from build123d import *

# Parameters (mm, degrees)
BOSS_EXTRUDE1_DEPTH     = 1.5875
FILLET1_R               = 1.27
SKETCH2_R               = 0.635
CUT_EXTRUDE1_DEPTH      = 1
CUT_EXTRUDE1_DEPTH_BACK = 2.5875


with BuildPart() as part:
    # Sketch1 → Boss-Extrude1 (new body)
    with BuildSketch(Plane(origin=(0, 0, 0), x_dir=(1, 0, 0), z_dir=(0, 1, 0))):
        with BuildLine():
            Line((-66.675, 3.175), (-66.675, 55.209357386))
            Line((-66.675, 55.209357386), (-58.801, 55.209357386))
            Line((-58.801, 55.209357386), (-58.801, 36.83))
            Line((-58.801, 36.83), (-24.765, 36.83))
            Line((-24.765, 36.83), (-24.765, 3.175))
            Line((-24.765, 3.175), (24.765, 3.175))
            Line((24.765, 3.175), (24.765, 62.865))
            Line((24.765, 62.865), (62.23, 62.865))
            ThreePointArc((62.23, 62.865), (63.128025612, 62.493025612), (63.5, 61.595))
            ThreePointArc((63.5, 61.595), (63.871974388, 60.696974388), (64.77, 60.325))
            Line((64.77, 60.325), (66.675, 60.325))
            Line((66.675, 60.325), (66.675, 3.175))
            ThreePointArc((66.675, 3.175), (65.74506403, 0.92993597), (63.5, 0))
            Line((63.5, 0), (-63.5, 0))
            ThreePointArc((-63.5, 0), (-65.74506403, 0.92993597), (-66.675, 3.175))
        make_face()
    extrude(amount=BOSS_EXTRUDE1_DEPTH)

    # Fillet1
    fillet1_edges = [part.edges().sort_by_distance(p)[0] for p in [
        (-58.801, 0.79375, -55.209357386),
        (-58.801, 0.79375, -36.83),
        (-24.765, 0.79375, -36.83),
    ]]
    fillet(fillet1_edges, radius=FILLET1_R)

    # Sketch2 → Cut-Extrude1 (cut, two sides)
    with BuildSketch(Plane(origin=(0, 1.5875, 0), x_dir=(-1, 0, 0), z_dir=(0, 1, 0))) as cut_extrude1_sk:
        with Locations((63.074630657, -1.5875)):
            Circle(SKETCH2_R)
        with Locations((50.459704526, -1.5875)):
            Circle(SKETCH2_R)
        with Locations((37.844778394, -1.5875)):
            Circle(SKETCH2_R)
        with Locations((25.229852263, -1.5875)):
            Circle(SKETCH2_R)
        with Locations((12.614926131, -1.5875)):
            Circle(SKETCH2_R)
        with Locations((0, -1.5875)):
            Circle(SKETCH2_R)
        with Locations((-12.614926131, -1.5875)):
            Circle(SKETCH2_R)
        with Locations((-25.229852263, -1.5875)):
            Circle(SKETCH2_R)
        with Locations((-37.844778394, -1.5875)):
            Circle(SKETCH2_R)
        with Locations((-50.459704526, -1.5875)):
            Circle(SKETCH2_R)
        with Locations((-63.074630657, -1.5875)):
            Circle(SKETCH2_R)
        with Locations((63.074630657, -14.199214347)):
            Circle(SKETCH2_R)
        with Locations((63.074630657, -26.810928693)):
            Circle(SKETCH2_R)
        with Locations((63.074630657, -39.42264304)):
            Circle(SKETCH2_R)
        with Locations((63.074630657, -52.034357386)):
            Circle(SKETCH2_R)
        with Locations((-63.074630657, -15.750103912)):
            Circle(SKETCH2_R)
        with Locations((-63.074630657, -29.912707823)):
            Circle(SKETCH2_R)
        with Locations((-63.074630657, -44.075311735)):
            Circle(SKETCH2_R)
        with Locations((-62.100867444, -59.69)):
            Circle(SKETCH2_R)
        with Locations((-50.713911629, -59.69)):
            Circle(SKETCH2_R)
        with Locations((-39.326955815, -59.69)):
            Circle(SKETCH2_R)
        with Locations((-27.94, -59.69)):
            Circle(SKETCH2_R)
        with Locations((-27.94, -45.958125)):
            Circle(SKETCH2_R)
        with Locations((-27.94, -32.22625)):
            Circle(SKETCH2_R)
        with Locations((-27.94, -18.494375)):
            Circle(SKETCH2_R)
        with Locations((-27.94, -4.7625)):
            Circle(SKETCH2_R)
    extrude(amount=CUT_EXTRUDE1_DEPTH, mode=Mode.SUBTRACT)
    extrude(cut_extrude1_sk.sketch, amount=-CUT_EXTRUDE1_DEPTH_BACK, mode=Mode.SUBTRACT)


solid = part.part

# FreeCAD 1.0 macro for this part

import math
import FreeCAD as App
import Part
import Sketcher
Q = App.Units.Quantity


def edges_at(feature, points):
    """Names of the edges that pass closest to the given points."""
    edges = feature.Shape.Edges
    near = lambda p: min(range(len(edges)), key=lambda i: edges[i].distToShape(Part.Vertex(*p))[0])
    return sorted({f"Edge{near(p) + 1}" for p in points})

doc = App.newDocument("Part")
params = doc.addObject("Spreadsheet::Sheet", "Params")
for row, (alias, value) in enumerate([
    ("sketch1_width", "5 in"),
    ("sketch1_radius", "0.05 in"),
    ("sketch1_radius2", "0.125 in"),
    ("sketch1_width2", "1.95 in"),
    ("sketch1_width3", "1.34 in"),
    ("pad1_length", "0.0625 in"),
    ("fillet_radius", "0.05 in"),
    ("sketch2_diameter", "0.05 in"),
], start=1):
    params.set(f"A{row}", alias)
    params.set(f"B{row}", "=" + value)
    params.setAlias(f"B{row}", alias)

body = doc.addObject("PartDesign::Body", "Body")

# Sketch on XZ plane
sketch1 = doc.addObject("Sketcher::SketchObject", "Sketch")
body.addObject(sketch1)
sketch1.AttachmentSupport = (doc.XZ_Plane, [""])
sketch1.MapMode = "FlatFace"
sketch1.addGeometry(Part.LineSegment(App.Vector(-66.675, -55.209357, 0), App.Vector(-66.675, -3.175, 0)), False)
sketch1.addGeometry(Part.ArcOfCircle(Part.Circle(App.Vector(-63.5, -3.175, 0), App.Vector(0, 0, 1), 3.175), math.radians(90), math.radians(180)), False)
sketch1.addGeometry(Part.LineSegment(App.Vector(-63.5, 0, 0), App.Vector(63.5, 0, 0)), False)
sketch1.addGeometry(Part.ArcOfCircle(Part.Circle(App.Vector(63.5, -3.175, 0), App.Vector(0, 0, 1), 3.175), math.radians(0), math.radians(90)), False)
sketch1.addGeometry(Part.LineSegment(App.Vector(66.675, -3.175, 0), App.Vector(66.675, -60.325, 0)), False)
sketch1.addGeometry(Part.LineSegment(App.Vector(66.675, -60.325, 0), App.Vector(64.77, -60.325, 0)), False)
sketch1.addGeometry(Part.ArcOfCircle(Part.Circle(App.Vector(64.77, -61.595, 0), App.Vector(0, 0, 1), 1.27), math.radians(90), math.radians(180)), False)
sketch1.addGeometry(Part.ArcOfCircle(Part.Circle(App.Vector(62.23, -61.595, 0), App.Vector(0, 0, 1), 1.27), math.radians(-90), math.radians(0)), False)
sketch1.addGeometry(Part.LineSegment(App.Vector(62.23, -62.865, 0), App.Vector(24.765, -62.865, 0)), False)
sketch1.addGeometry(Part.LineSegment(App.Vector(24.765, -62.865, 0), App.Vector(24.765, -3.175, 0)), False)
sketch1.addGeometry(Part.LineSegment(App.Vector(24.765, -3.175, 0), App.Vector(-24.765, -3.175, 0)), False)
sketch1.addGeometry(Part.LineSegment(App.Vector(-24.765, -3.175, 0), App.Vector(-24.765, -36.83, 0)), False)
sketch1.addGeometry(Part.LineSegment(App.Vector(-24.765, -36.83, 0), App.Vector(-58.801, -36.83, 0)), False)
sketch1.addGeometry(Part.LineSegment(App.Vector(-58.801, -36.83, 0), App.Vector(-58.801, -55.209357, 0)), False)
sketch1.addGeometry(Part.LineSegment(App.Vector(-58.801, -55.209357, 0), App.Vector(-66.675, -55.209357, 0)), False)
sketch1.addConstraint(Sketcher.Constraint("Tangent", 0, 2, 1, 2))
sketch1.addConstraint(Sketcher.Constraint("Tangent", 1, 1, 2, 1))
sketch1.addConstraint(Sketcher.Constraint("Tangent", 2, 2, 3, 2))
sketch1.addConstraint(Sketcher.Constraint("Tangent", 3, 1, 4, 1))
sketch1.addConstraint(Sketcher.Constraint("Coincident", 4, 2, 5, 1))
sketch1.addConstraint(Sketcher.Constraint("Tangent", 5, 2, 6, 1))
sketch1.addConstraint(Sketcher.Constraint("Tangent", 6, 2, 7, 2))
sketch1.addConstraint(Sketcher.Constraint("Tangent", 7, 1, 8, 1))
sketch1.addConstraint(Sketcher.Constraint("Coincident", 8, 2, 9, 1))
sketch1.addConstraint(Sketcher.Constraint("Coincident", 9, 2, 10, 1))
sketch1.addConstraint(Sketcher.Constraint("Coincident", 10, 2, 11, 1))
sketch1.addConstraint(Sketcher.Constraint("Coincident", 11, 2, 12, 1))
sketch1.addConstraint(Sketcher.Constraint("Coincident", 12, 2, 13, 1))
sketch1.addConstraint(Sketcher.Constraint("Coincident", 13, 2, 14, 1))
sketch1.addConstraint(Sketcher.Constraint("Coincident", 14, 2, 0, 1))
sketch1.addConstraint(Sketcher.Constraint("Vertical", 0))
sketch1.addConstraint(Sketcher.Constraint("Horizontal", 2))
sketch1.addConstraint(Sketcher.Constraint("Vertical", 4))
sketch1.addConstraint(Sketcher.Constraint("Horizontal", 5))
sketch1.addConstraint(Sketcher.Constraint("Horizontal", 8))
sketch1.addConstraint(Sketcher.Constraint("Vertical", 9))
sketch1.addConstraint(Sketcher.Constraint("Horizontal", 10))
sketch1.addConstraint(Sketcher.Constraint("Vertical", 11))
sketch1.addConstraint(Sketcher.Constraint("Horizontal", 12))
sketch1.addConstraint(Sketcher.Constraint("Vertical", 13))
sketch1.addConstraint(Sketcher.Constraint("Horizontal", 14))
sketch1.addConstraint(Sketcher.Constraint("Equal", 1, 3))
sketch1.addConstraint(Sketcher.Constraint("Equal", 6, 7))
sketch1.addConstraint(Sketcher.Constraint("Symmetric", 1, 1, 2, 2, -1, 1))
sketch1.addConstraint(Sketcher.Constraint("Horizontal", 6, 3, 7, 3))
sketch1.addConstraint(Sketcher.Constraint("Horizontal", 3, 1, 9, 2))
sketch1.addConstraint(Sketcher.Constraint("Vertical", 2, 2, 6, 2))
sketch1.addConstraint(Sketcher.Constraint("DistanceX", 2, 1, 2, 2, Q("5 in")))
sketch1.addConstraint(Sketcher.Constraint("Radius", 6, Q("0.05 in")))
sketch1.addConstraint(Sketcher.Constraint("Radius", 1, Q("0.125 in")))
sketch1.addConstraint(Sketcher.Constraint("DistanceX", 10, 2, 10, 1, Q("1.95 in")))
sketch1.addConstraint(Sketcher.Constraint("DistanceX", 12, 2, 12, 1, Q("1.34 in")))
sketch1.addConstraint(Sketcher.Constraint("DistanceX", 14, 2, 14, 1, Q("0.31 in")))
sketch1.addConstraint(Sketcher.Constraint("DistanceY", 4, 2, 4, 1, Q("2.25 in")))
sketch1.addConstraint(Sketcher.Constraint("DistanceY", 11, 2, 11, 1, Q("1.325 in")))
sketch1.addConstraint(Sketcher.Constraint("DistanceY", 0, 1, 0, 2, 52.034357))
sketch1.setExpression("Constraints[32]", "Params.sketch1_width")
sketch1.setExpression("Constraints[33]", "Params.sketch1_radius")
sketch1.setExpression("Constraints[34]", "Params.sketch1_radius2")
sketch1.setExpression("Constraints[35]", "Params.sketch1_width2")
sketch1.setExpression("Constraints[36]", "Params.sketch1_width3")
pad1 = doc.addObject("PartDesign::Pad", "Pad")
body.addObject(pad1)
pad1.Profile = sketch1
pad1.setExpression("Length", "Params.pad1_length")
pad1.Reversed = True
doc.recompute()

fillet = doc.addObject("PartDesign::Fillet", "Fillet")
body.addObject(fillet)
fillet.Base = (pad1, edges_at(pad1, [(-58.801, 0.794, -55.209), (-58.801, 0.794, -36.83), (-24.765, 0.794, -36.83)]))
fillet.setExpression("Radius", "Params.fillet_radius")

# Sketch on XZ plane
sketch2 = doc.addObject("Sketcher::SketchObject", "Sketch001")
body.addObject(sketch2)
sketch2.AttachmentSupport = (doc.XZ_Plane, [""])
sketch2.MapMode = "FlatFace"
sketch2.AttachmentOffset = App.Placement(App.Vector(0, 0, -0.0625 * 25.4), App.Rotation())
sketch2.addGeometry(Part.Circle(App.Vector(-63.074631, -1.5875, 0), App.Vector(0, 0, 1), 0.635), False)
sketch2.addGeometry(Part.Circle(App.Vector(-50.459705, -1.5875, 0), App.Vector(0, 0, 1), 0.635), False)
sketch2.addGeometry(Part.Circle(App.Vector(-37.844778, -1.5875, 0), App.Vector(0, 0, 1), 0.635), False)
sketch2.addGeometry(Part.Circle(App.Vector(-25.229852, -1.5875, 0), App.Vector(0, 0, 1), 0.635), False)
sketch2.addGeometry(Part.Circle(App.Vector(-12.614926, -1.5875, 0), App.Vector(0, 0, 1), 0.635), False)
sketch2.addGeometry(Part.Circle(App.Vector(0, -1.5875, 0), App.Vector(0, 0, 1), 0.635), False)
sketch2.addGeometry(Part.Circle(App.Vector(12.614926, -1.5875, 0), App.Vector(0, 0, 1), 0.635), False)
sketch2.addGeometry(Part.Circle(App.Vector(25.229852, -1.5875, 0), App.Vector(0, 0, 1), 0.635), False)
sketch2.addGeometry(Part.Circle(App.Vector(37.844778, -1.5875, 0), App.Vector(0, 0, 1), 0.635), False)
sketch2.addGeometry(Part.Circle(App.Vector(50.459705, -1.5875, 0), App.Vector(0, 0, 1), 0.635), False)
sketch2.addGeometry(Part.Circle(App.Vector(63.074631, -1.5875, 0), App.Vector(0, 0, 1), 0.635), False)
sketch2.addGeometry(Part.Circle(App.Vector(-63.074631, -14.199214, 0), App.Vector(0, 0, 1), 0.635), False)
sketch2.addGeometry(Part.Circle(App.Vector(-63.074631, -26.810929, 0), App.Vector(0, 0, 1), 0.635), False)
sketch2.addGeometry(Part.Circle(App.Vector(-63.074631, -39.422643, 0), App.Vector(0, 0, 1), 0.635), False)
sketch2.addGeometry(Part.Circle(App.Vector(-63.074631, -52.034357, 0), App.Vector(0, 0, 1), 0.635), False)
sketch2.addGeometry(Part.Circle(App.Vector(63.074631, -15.750104, 0), App.Vector(0, 0, 1), 0.635), False)
sketch2.addGeometry(Part.Circle(App.Vector(63.074631, -29.912708, 0), App.Vector(0, 0, 1), 0.635), False)
sketch2.addGeometry(Part.Circle(App.Vector(63.074631, -44.075312, 0), App.Vector(0, 0, 1), 0.635), False)
sketch2.addGeometry(Part.Circle(App.Vector(62.100867, -59.69, 0), App.Vector(0, 0, 1), 0.635), False)
sketch2.addGeometry(Part.Circle(App.Vector(50.713912, -59.69, 0), App.Vector(0, 0, 1), 0.635), False)
sketch2.addGeometry(Part.Circle(App.Vector(39.326956, -59.69, 0), App.Vector(0, 0, 1), 0.635), False)
sketch2.addGeometry(Part.Circle(App.Vector(27.94, -59.69, 0), App.Vector(0, 0, 1), 0.635), False)
sketch2.addGeometry(Part.Circle(App.Vector(27.94, -45.958125, 0), App.Vector(0, 0, 1), 0.635), False)
sketch2.addGeometry(Part.Circle(App.Vector(27.94, -32.22625, 0), App.Vector(0, 0, 1), 0.635), False)
sketch2.addGeometry(Part.Circle(App.Vector(27.94, -18.494375, 0), App.Vector(0, 0, 1), 0.635), False)
sketch2.addGeometry(Part.Circle(App.Vector(27.94, -4.7625, 0), App.Vector(0, 0, 1), 0.635), False)
sketch2.addConstraint(Sketcher.Constraint("Equal", 0, 1))
sketch2.addConstraint(Sketcher.Constraint("Equal", 1, 2))
sketch2.addConstraint(Sketcher.Constraint("Equal", 2, 3))
sketch2.addConstraint(Sketcher.Constraint("Equal", 3, 4))
sketch2.addConstraint(Sketcher.Constraint("Equal", 4, 5))
sketch2.addConstraint(Sketcher.Constraint("Equal", 5, 6))
sketch2.addConstraint(Sketcher.Constraint("Equal", 6, 7))
sketch2.addConstraint(Sketcher.Constraint("Equal", 7, 8))
sketch2.addConstraint(Sketcher.Constraint("Equal", 8, 9))
sketch2.addConstraint(Sketcher.Constraint("Equal", 9, 10))
sketch2.addConstraint(Sketcher.Constraint("Equal", 10, 11))
sketch2.addConstraint(Sketcher.Constraint("Equal", 11, 12))
sketch2.addConstraint(Sketcher.Constraint("Equal", 12, 13))
sketch2.addConstraint(Sketcher.Constraint("Equal", 13, 14))
sketch2.addConstraint(Sketcher.Constraint("Equal", 14, 15))
sketch2.addConstraint(Sketcher.Constraint("Equal", 15, 16))
sketch2.addConstraint(Sketcher.Constraint("Equal", 16, 17))
sketch2.addConstraint(Sketcher.Constraint("Equal", 17, 18))
sketch2.addConstraint(Sketcher.Constraint("Equal", 18, 19))
sketch2.addConstraint(Sketcher.Constraint("Equal", 19, 20))
sketch2.addConstraint(Sketcher.Constraint("Equal", 20, 21))
sketch2.addConstraint(Sketcher.Constraint("Equal", 21, 22))
sketch2.addConstraint(Sketcher.Constraint("Equal", 22, 23))
sketch2.addConstraint(Sketcher.Constraint("Equal", 23, 24))
sketch2.addConstraint(Sketcher.Constraint("Equal", 24, 25))
sketch2.addConstraint(Sketcher.Constraint("Symmetric", 4, 3, 6, 3, -2))
sketch2.addConstraint(Sketcher.Constraint("Symmetric", 3, 3, 7, 3, -2))
sketch2.addConstraint(Sketcher.Constraint("Symmetric", 2, 3, 8, 3, -2))
sketch2.addConstraint(Sketcher.Constraint("Symmetric", 1, 3, 9, 3, -2))
sketch2.addConstraint(Sketcher.Constraint("Symmetric", 0, 3, 10, 3, -2))
sketch2.addConstraint(Sketcher.Constraint("PointOnObject", 5, 3, -2))
sketch2.addConstraint(Sketcher.Constraint("Horizontal", 0, 3, 1, 3))
sketch2.addConstraint(Sketcher.Constraint("Horizontal", 1, 3, 2, 3))
sketch2.addConstraint(Sketcher.Constraint("Horizontal", 2, 3, 3, 3))
sketch2.addConstraint(Sketcher.Constraint("Horizontal", 3, 3, 4, 3))
sketch2.addConstraint(Sketcher.Constraint("Horizontal", 4, 3, 5, 3))
sketch2.addConstraint(Sketcher.Constraint("Horizontal", 18, 3, 19, 3))
sketch2.addConstraint(Sketcher.Constraint("Horizontal", 19, 3, 20, 3))
sketch2.addConstraint(Sketcher.Constraint("Horizontal", 20, 3, 21, 3))
sketch2.addConstraint(Sketcher.Constraint("Vertical", 0, 3, 11, 3))
sketch2.addConstraint(Sketcher.Constraint("Vertical", 11, 3, 12, 3))
sketch2.addConstraint(Sketcher.Constraint("Vertical", 12, 3, 13, 3))
sketch2.addConstraint(Sketcher.Constraint("Vertical", 13, 3, 14, 3))
sketch2.addConstraint(Sketcher.Constraint("Vertical", 10, 3, 15, 3))
sketch2.addConstraint(Sketcher.Constraint("Vertical", 15, 3, 16, 3))
sketch2.addConstraint(Sketcher.Constraint("Vertical", 16, 3, 17, 3))
sketch2.addConstraint(Sketcher.Constraint("Vertical", 21, 3, 22, 3))
sketch2.addConstraint(Sketcher.Constraint("Vertical", 22, 3, 23, 3))
sketch2.addConstraint(Sketcher.Constraint("Vertical", 23, 3, 24, 3))
sketch2.addConstraint(Sketcher.Constraint("Vertical", 24, 3, 25, 3))
sketch2.addConstraint(Sketcher.Constraint("Diameter", 0, Q("0.05 in")))
sketch2.addConstraint(Sketcher.Constraint("DistanceX", -1, 1, 21, 3, Q("1.1 in")))
sketch2.addConstraint(Sketcher.Constraint("DistanceY", 18, 3, -1, 1, Q("2.35 in")))
sketch2.addConstraint(Sketcher.Constraint("DistanceY", 0, 3, -1, 1, Q("0.0625 in")))
sketch2.addConstraint(Sketcher.Constraint("DistanceY", 25, 3, -1, 1, Q("0.1875 in")))
sketch2.addConstraint(Sketcher.Constraint("DistanceX", 0, 3, -1, 1, 63.074631))
sketch2.addConstraint(Sketcher.Constraint("DistanceX", 2, 3, -1, 1, 37.844778))
sketch2.addConstraint(Sketcher.Constraint("DistanceY", 12, 3, -1, 1, 26.810929))
sketch2.addConstraint(Sketcher.Constraint("DistanceY", 17, 3, -1, 1, 44.075312))
sketch2.addConstraint(Sketcher.Constraint("DistanceX", -1, 1, 19, 3, 50.713912))
sketch2.addConstraint(Sketcher.Constraint("DistanceY", 23, 3, -1, 1, 32.22625))
sketch2.addConstraint(Sketcher.Constraint("DistanceX", 0, 3, 3, 3, 37.844778))
sketch2.addConstraint(Sketcher.Constraint("DistanceX", 1, 3, 4, 3, 37.844778))
sketch2.addConstraint(Sketcher.Constraint("DistanceX", 3, 3, 6, 3, 37.844778))
sketch2.addConstraint(Sketcher.Constraint("DistanceY", 13, 3, 11, 3, 25.223429))
sketch2.addConstraint(Sketcher.Constraint("DistanceY", 14, 3, 12, 3, 25.223429))
sketch2.addConstraint(Sketcher.Constraint("DistanceX", 20, 3, 18, 3, 22.773912))
sketch2.addConstraint(Sketcher.Constraint("DistanceY", 22, 3, 24, 3, 27.46375))
sketch2.addConstraint(Sketcher.Constraint("DistanceY", 11, 3, -1, 1, 14.199214))
sketch2.addConstraint(Sketcher.Constraint("DistanceY", 15, 3, -1, 1, 15.750104))
sketch2.addConstraint(Sketcher.Constraint("DistanceY", 16, 3, -1, 1, 29.912708))
sketch2.addConstraint(Sketcher.Constraint("DistanceX", -1, 1, 18, 3, 62.100867))
sketch2.addConstraint(Sketcher.Constraint("DistanceY", 22, 3, -1, 1, 45.958125))
sketch2.setExpression("Constraints[50]", "Params.sketch2_diameter")
pocket1 = doc.addObject("PartDesign::Pocket", "Pocket")
body.addObject(pocket1)
pocket1.Profile = sketch2
pocket1.Type = "ThroughAll"
pocket1.Midplane = True

doc.recompute()
